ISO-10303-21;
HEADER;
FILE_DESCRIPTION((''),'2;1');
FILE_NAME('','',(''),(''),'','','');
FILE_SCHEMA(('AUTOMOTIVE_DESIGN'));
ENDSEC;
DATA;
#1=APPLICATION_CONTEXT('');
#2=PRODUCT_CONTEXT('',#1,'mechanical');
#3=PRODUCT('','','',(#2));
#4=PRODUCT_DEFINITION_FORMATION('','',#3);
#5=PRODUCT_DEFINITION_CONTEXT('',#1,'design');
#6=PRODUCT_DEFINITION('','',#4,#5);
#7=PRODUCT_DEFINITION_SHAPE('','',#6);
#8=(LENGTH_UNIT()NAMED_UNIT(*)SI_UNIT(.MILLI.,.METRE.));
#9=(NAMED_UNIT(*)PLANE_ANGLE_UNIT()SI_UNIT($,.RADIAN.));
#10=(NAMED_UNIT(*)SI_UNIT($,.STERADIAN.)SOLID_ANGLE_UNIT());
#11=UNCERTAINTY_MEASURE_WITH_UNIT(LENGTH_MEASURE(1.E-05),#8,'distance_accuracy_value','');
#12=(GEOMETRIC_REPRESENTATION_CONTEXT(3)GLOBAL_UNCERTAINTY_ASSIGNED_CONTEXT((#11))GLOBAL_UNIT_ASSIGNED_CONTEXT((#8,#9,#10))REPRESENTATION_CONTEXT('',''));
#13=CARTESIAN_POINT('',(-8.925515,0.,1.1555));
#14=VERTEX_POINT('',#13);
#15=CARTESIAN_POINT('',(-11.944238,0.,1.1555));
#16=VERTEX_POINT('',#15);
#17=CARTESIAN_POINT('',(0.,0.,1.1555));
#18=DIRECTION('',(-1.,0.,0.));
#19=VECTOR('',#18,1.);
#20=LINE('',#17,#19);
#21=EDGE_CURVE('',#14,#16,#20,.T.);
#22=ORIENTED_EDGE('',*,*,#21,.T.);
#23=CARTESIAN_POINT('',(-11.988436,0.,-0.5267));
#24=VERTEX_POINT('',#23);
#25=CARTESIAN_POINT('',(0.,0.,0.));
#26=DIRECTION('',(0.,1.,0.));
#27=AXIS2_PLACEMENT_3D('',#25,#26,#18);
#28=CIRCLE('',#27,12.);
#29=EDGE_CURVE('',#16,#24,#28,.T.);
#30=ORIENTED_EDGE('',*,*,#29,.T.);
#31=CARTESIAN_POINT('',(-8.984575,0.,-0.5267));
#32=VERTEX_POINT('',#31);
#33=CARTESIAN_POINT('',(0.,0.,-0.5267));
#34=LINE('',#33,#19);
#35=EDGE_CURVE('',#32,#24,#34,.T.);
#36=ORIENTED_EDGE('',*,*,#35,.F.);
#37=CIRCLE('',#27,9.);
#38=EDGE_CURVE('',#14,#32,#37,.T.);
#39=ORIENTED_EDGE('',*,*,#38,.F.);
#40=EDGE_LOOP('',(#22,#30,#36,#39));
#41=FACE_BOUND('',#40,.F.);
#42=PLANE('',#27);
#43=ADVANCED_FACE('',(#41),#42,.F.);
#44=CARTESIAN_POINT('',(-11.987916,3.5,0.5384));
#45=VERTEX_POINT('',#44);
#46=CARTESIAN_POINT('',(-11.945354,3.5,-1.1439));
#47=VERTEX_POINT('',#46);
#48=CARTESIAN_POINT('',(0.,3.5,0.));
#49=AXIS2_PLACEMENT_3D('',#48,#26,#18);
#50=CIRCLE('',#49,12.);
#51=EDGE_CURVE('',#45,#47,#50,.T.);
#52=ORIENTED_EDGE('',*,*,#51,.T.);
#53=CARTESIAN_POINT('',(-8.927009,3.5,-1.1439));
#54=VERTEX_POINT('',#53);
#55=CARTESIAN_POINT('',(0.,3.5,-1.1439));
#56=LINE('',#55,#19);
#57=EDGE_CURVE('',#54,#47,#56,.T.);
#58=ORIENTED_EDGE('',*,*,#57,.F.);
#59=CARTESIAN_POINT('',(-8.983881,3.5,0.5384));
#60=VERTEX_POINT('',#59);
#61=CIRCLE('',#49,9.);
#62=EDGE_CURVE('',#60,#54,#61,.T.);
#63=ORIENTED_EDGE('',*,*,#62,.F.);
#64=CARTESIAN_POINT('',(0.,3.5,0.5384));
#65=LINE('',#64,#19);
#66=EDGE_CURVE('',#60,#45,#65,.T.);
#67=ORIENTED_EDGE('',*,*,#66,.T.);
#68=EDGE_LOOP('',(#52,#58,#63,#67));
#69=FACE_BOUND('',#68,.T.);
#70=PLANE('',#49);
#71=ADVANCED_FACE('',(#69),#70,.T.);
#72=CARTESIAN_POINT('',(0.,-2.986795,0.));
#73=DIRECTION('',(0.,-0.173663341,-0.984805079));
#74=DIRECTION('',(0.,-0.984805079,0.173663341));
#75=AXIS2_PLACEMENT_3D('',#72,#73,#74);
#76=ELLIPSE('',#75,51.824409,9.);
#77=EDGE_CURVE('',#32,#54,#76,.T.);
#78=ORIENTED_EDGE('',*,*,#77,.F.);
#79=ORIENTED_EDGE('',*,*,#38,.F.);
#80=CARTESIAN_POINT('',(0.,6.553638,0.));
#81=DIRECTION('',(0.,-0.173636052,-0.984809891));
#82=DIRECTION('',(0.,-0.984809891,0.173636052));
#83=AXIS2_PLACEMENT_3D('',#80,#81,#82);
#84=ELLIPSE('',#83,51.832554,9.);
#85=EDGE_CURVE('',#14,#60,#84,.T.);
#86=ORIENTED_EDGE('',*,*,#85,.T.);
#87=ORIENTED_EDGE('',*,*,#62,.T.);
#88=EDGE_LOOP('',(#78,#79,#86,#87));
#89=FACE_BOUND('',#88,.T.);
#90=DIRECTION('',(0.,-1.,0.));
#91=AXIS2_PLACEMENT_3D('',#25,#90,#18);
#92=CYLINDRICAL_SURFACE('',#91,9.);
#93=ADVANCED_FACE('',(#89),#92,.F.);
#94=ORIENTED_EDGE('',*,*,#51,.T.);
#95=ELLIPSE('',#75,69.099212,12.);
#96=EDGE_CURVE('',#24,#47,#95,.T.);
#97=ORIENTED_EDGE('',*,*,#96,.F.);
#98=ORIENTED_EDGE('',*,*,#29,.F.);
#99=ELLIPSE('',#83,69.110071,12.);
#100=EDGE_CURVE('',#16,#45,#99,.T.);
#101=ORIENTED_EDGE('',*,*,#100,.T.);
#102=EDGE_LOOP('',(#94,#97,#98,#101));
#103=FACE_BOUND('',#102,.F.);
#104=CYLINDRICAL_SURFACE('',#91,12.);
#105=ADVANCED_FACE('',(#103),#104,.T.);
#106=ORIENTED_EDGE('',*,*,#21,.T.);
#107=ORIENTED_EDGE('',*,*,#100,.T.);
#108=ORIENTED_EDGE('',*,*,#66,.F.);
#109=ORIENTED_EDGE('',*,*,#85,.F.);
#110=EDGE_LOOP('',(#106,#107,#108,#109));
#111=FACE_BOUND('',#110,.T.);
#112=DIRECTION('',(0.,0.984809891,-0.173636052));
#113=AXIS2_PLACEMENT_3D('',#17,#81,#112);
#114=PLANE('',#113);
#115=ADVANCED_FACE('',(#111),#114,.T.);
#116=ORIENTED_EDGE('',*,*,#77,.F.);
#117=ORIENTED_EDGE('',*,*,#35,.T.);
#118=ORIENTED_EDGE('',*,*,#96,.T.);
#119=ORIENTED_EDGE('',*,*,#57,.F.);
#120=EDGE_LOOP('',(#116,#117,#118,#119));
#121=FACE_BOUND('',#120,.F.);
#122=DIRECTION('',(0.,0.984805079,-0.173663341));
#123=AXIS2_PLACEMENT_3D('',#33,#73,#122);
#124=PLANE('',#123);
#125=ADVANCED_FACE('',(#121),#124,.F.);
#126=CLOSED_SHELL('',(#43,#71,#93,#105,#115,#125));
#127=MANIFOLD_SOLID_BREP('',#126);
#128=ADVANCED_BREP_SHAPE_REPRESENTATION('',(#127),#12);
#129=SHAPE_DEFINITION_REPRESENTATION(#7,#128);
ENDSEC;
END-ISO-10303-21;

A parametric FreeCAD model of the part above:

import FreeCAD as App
import Part
import Sketcher

V = App.Vector
Q = App.Units.Quantity

doc = App.newDocument("Part")
body = doc.addObject("PartDesign::Body", "Body")

sketch1 = body.newObject("Sketcher::SketchObject", "Sketch")
sketch1.AttachmentSupport = (doc.getObject("XZ_Plane"), [""])
sketch1.MapMode = "FlatFace"
sketch1.addGeometry(Part.Circle(V(0, 0, 0), V(0, 0, 1), 12), False)
sketch1.addGeometry(Part.Circle(V(0, 0, 0), V(0, 0, 1), 9), False)
sketch1.addConstraint(Sketcher.Constraint("Coincident", 0, 3, -1, 1))
sketch1.addConstraint(Sketcher.Constraint("Coincident", 1, 3, -1, 1))
sketch1.addConstraint(Sketcher.Constraint("Diameter", 0, Q("24 mm")))
sketch1.addConstraint(Sketcher.Constraint("Diameter", 1, Q("18 mm")))
pad1 = body.newObject("PartDesign::Pad", "Pad")
pad1.Profile = sketch1
pad1.Length = 3.5
pad1.Reversed = True

sketch2 = body.newObject("Sketcher::SketchObject", "Sketch001")
sketch2.AttachmentSupport = (doc.getObject("YZ_Plane"), [""])
sketch2.MapMode = "FlatFace"
sketch2.addGeometry(Part.LineSegment(V(3.5, 0.5384, 0), V(0, 1.1555, 0)), False)
sketch2.addGeometry(Part.LineSegment(V(0, 1.1555, 0), V(0, -0.5267, 0)), False)
sketch2.addGeometry(Part.LineSegment(V(0, -0.5267, 0), V(3.5, -1.1439, 0)), False)
sketch2.addGeometry(Part.LineSegment(V(3.5, -1.1439, 0), V(3.5, 0.5384, 0)), False)
sketch2.addConstraint(Sketcher.Constraint("Coincident", 0, 2, 1, 1))
sketch2.addConstraint(Sketcher.Constraint("Coincident", 1, 2, 2, 1))
sketch2.addConstraint(Sketcher.Constraint("Coincident", 2, 2, 3, 1))
sketch2.addConstraint(Sketcher.Constraint("Coincident", 3, 2, 0, 1))
sketch2.addConstraint(Sketcher.Constraint("Vertical", 1))
sketch2.addConstraint(Sketcher.Constraint("Vertical", 3))
sketch2.addConstraint(Sketcher.Constraint("PointOnObject", 0, 2, -2))
sketch2.addConstraint(Sketcher.Constraint("Parallel", 0, 2))
sketch2.addConstraint(Sketcher.Constraint("Angle", 0, Q("170.0007 deg")))
sketch2.addConstraint(Sketcher.Constraint("DistanceX", -1, 1, 2, 2, Q("3.5 mm")))
sketch2.addConstraint(Sketcher.Constraint("DistanceY", 1, 2, 1, 1, Q("1.6822 mm")))
sketch2.addConstraint(Sketcher.Constraint("DistanceY", 2, 2, -1, 1, Q("1.144 mm")))
pocket1 = body.newObject("PartDesign::Pocket", "Pocket")
pocket1.Profile = sketch2
pocket1.Length = 300

doc.recompute()
